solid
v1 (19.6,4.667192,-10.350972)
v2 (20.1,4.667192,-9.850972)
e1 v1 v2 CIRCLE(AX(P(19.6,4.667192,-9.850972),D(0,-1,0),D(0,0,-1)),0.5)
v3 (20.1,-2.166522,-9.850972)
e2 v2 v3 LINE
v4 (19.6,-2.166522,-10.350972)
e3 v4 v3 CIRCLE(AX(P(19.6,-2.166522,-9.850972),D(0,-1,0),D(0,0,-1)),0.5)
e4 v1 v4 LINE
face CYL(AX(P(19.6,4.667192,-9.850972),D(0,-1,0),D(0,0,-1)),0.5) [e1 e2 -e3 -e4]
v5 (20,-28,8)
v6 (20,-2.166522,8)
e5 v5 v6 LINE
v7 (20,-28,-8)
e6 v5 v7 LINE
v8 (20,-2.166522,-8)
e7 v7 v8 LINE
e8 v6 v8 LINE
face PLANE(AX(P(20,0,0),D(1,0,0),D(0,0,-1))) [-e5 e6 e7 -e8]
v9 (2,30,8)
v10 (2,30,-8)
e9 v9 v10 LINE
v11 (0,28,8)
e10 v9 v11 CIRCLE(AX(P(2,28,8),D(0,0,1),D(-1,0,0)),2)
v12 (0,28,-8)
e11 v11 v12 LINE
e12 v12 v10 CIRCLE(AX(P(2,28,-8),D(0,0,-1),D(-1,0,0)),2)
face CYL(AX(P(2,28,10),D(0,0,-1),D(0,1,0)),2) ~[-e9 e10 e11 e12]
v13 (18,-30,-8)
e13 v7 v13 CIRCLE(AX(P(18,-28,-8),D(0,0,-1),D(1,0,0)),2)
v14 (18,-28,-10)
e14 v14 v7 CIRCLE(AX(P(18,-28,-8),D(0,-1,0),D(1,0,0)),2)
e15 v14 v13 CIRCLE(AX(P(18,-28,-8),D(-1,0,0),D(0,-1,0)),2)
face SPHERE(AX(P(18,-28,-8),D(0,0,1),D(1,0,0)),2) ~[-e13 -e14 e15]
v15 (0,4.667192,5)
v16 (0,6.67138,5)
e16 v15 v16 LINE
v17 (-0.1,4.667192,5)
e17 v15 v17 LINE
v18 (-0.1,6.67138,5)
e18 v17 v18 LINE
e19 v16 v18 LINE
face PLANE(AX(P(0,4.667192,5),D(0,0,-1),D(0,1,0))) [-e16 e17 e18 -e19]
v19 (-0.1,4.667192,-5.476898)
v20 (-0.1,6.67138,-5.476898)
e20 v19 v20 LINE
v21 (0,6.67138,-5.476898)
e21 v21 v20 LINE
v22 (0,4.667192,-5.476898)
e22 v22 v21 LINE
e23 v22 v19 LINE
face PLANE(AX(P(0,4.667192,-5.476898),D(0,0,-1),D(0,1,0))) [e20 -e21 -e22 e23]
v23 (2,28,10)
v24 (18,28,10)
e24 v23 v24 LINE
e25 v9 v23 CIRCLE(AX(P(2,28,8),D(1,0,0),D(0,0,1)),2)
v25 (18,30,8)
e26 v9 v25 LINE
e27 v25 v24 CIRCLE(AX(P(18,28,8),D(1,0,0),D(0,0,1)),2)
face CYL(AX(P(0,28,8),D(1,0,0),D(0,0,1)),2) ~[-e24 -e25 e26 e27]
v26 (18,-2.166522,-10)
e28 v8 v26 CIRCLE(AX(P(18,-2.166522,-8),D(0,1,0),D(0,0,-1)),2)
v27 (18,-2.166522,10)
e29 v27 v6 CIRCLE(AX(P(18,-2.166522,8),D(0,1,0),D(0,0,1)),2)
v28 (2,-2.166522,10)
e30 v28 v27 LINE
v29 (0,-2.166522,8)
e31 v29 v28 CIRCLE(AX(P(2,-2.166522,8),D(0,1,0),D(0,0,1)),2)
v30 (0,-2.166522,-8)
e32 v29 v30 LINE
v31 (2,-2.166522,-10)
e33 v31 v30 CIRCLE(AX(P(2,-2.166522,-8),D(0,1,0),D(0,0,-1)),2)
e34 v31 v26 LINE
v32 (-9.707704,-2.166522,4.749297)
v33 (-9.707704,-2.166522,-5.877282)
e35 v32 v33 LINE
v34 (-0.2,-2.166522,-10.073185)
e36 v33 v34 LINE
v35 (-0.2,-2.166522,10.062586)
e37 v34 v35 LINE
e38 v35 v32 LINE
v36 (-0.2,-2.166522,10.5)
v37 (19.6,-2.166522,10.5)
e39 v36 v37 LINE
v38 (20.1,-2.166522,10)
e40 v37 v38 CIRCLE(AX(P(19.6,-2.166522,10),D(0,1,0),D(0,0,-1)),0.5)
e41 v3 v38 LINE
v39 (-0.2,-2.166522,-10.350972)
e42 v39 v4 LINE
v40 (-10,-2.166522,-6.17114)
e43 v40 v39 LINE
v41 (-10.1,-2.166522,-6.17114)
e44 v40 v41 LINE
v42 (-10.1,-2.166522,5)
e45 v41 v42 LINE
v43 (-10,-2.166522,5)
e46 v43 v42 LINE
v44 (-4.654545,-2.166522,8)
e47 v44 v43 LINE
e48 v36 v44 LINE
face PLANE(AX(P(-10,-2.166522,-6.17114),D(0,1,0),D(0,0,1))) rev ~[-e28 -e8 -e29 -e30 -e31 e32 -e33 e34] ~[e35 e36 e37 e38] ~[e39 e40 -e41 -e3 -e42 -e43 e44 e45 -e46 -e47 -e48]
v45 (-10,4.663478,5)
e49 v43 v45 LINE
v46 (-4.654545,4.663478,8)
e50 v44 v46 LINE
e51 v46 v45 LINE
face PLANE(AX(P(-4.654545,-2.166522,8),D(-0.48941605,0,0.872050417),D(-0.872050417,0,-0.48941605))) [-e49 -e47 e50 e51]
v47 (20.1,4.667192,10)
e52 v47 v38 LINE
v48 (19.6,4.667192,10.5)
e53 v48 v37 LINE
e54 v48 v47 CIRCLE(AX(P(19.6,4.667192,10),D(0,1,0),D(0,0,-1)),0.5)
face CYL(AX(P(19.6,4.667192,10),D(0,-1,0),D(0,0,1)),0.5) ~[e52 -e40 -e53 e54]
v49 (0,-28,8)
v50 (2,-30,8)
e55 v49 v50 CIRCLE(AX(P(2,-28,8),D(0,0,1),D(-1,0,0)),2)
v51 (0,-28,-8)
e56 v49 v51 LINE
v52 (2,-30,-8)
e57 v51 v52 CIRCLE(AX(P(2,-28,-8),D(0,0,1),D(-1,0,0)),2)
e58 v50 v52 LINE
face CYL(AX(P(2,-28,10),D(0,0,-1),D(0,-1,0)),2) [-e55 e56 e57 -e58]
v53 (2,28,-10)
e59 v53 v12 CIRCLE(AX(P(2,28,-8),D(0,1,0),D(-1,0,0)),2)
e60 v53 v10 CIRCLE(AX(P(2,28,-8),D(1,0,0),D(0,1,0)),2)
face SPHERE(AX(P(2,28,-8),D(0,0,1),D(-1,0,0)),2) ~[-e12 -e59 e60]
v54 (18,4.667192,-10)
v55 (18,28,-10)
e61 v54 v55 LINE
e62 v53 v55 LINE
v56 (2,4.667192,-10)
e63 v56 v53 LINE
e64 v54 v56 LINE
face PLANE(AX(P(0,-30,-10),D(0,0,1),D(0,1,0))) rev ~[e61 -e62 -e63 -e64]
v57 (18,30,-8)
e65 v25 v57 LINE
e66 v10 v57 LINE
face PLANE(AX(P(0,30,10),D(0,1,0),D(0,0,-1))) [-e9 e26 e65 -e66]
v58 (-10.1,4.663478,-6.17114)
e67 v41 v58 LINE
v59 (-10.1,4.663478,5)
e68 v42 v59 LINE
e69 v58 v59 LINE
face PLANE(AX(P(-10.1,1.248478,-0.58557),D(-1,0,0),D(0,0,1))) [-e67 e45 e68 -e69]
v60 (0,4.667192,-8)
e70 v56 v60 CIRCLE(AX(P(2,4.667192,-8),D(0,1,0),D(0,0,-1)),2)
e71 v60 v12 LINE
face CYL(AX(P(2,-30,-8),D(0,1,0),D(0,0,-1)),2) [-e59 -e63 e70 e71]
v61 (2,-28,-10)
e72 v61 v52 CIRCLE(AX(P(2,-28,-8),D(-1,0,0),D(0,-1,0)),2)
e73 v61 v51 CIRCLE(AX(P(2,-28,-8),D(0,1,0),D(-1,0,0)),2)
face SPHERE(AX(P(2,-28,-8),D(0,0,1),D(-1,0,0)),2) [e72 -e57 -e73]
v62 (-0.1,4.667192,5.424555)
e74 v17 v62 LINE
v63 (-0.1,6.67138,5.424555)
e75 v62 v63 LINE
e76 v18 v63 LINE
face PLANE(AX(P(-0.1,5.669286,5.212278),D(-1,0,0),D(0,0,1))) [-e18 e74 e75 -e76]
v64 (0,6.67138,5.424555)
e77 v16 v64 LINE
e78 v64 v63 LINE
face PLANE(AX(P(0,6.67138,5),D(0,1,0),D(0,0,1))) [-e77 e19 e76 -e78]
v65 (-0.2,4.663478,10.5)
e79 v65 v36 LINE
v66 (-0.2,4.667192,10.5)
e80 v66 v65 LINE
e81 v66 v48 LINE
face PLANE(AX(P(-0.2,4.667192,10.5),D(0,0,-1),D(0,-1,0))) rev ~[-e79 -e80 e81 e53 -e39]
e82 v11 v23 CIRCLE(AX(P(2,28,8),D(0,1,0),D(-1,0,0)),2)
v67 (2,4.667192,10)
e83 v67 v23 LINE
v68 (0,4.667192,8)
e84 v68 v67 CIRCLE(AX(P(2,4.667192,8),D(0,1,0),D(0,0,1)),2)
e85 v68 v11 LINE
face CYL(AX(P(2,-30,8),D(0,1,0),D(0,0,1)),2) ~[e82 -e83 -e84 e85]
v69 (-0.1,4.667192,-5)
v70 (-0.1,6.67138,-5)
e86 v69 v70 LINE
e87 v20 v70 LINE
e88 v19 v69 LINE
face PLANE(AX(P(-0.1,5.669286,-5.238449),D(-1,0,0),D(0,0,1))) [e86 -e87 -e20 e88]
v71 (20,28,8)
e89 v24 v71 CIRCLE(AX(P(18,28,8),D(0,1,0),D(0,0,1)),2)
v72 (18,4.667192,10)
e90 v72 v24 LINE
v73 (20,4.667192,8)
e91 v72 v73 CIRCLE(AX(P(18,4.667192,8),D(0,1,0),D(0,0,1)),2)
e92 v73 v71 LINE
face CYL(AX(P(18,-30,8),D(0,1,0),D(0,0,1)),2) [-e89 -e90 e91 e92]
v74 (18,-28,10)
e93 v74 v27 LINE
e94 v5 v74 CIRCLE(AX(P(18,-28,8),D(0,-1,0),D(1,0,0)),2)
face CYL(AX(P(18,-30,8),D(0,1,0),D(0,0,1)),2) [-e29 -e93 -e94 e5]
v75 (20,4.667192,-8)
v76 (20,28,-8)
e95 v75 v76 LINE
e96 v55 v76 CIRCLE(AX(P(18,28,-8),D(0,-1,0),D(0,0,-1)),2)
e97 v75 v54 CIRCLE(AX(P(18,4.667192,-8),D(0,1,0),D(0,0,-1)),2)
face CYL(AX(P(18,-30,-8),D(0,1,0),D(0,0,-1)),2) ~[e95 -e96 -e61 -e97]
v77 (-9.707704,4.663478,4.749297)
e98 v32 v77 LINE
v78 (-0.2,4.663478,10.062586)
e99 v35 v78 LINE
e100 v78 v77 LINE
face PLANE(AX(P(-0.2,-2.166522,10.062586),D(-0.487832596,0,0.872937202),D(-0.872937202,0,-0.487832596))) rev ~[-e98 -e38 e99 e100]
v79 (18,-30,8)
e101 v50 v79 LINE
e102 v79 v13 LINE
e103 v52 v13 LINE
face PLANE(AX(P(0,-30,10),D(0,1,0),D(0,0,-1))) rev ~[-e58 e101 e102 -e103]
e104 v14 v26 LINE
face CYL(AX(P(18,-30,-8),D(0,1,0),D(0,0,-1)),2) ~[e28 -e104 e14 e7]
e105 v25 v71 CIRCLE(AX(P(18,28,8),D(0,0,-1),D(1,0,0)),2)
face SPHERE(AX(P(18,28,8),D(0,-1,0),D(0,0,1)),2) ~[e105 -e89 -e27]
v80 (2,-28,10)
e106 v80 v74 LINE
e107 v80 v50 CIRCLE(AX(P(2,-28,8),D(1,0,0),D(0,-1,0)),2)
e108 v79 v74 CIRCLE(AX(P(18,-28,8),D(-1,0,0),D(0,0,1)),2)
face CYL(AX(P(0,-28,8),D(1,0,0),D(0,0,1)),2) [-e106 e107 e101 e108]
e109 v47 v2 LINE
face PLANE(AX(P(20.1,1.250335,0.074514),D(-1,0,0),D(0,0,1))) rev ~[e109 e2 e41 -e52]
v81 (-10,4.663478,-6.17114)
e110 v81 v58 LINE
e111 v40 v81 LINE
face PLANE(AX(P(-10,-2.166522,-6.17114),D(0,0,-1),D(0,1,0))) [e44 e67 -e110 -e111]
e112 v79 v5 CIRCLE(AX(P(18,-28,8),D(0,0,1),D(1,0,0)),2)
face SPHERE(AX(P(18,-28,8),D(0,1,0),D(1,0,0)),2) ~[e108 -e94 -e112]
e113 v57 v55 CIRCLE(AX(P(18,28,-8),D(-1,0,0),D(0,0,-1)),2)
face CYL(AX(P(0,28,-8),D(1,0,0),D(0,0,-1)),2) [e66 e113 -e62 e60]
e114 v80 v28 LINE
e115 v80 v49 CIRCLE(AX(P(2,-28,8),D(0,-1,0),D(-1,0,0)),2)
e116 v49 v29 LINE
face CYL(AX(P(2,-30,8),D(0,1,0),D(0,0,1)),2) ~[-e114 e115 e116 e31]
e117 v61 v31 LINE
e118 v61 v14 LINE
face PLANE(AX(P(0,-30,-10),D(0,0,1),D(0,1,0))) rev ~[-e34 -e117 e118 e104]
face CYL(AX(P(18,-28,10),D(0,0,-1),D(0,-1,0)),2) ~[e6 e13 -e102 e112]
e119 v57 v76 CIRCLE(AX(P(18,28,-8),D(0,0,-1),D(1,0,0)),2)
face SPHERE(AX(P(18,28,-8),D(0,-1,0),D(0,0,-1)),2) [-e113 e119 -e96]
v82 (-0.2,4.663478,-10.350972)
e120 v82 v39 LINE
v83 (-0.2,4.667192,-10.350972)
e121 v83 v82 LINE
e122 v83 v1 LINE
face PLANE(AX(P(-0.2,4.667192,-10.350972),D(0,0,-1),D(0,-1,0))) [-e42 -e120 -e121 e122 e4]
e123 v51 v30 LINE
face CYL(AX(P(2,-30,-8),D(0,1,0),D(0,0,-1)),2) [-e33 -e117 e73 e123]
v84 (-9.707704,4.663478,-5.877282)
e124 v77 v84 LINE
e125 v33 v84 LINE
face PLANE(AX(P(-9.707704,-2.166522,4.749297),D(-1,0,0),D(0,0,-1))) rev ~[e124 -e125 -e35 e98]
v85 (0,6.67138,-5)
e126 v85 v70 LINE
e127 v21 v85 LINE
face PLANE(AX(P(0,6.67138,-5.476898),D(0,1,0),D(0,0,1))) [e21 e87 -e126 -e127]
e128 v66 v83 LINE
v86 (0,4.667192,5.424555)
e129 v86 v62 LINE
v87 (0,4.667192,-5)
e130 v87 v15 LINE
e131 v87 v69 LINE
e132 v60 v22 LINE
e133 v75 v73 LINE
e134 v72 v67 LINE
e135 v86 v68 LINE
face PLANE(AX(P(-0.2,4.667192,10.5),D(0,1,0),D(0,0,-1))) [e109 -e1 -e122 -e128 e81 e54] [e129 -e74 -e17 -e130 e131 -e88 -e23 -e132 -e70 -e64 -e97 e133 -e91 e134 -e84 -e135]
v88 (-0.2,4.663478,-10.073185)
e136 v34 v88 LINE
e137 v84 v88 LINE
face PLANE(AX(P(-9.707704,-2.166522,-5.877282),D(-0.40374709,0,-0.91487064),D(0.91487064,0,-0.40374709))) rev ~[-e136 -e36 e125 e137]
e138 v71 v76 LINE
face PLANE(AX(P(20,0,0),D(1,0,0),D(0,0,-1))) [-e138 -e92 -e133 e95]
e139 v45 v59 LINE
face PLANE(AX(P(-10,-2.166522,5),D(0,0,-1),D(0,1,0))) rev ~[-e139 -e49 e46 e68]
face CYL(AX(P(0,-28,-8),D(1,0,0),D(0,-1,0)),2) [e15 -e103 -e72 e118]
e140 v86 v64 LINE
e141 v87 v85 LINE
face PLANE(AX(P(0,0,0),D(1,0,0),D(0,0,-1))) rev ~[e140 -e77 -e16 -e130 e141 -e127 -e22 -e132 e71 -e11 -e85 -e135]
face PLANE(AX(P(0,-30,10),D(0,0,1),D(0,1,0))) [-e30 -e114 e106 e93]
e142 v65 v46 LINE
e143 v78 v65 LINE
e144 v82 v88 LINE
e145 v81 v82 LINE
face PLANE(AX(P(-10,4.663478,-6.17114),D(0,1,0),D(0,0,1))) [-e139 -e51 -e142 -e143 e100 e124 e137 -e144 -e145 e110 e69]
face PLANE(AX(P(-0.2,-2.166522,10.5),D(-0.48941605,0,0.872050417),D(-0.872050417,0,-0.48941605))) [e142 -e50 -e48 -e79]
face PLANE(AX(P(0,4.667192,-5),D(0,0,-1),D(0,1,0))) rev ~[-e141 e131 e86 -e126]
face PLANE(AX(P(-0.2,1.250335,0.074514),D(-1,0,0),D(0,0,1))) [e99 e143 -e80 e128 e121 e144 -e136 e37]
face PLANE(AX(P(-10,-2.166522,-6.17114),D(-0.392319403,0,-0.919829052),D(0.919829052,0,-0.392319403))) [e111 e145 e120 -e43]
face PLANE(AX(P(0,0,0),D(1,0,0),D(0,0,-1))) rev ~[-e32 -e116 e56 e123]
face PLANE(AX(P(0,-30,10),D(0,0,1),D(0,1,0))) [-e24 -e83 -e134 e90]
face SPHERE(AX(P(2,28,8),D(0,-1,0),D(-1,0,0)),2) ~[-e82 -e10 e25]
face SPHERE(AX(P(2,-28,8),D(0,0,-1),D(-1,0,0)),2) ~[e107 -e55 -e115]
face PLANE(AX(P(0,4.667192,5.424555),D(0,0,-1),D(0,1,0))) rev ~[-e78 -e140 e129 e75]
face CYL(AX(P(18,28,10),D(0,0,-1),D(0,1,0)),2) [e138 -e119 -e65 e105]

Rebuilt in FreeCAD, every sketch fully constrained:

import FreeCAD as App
import Part
import Sketcher


def edges_at(feature, points):
    """Names of the edges that pass closest to the given points."""
    edges = feature.Shape.Edges
    near = lambda p: min(range(len(edges)), key=lambda i: edges[i].distToShape(Part.Vertex(*p))[0])
    return sorted({f"Edge{near(p) + 1}" for p in points})


def add_polygon(sketch, points):
    """Adds a closed chain of lines whose ends are joined by coincident constraints."""
    first, n = sketch.GeometryCount, len(points)
    for a, b in zip(points, points[1:] + points[:1]):
        sketch.addGeometry(Part.LineSegment(App.Vector(*a, 0), App.Vector(*b, 0)), False)
    for i in range(n):
        sketch.addConstraint(Sketcher.Constraint("Coincident", first + i, 2, first + (i + 1) % n, 1))

doc = App.newDocument("Part")
body = doc.addObject("PartDesign::Body", "Body")

# Sketch on YZ plane
sketch1 = doc.addObject("Sketcher::SketchObject", "Sketch")
body.addObject(sketch1)
sketch1.AttachmentSupport = (doc.YZ_Plane, [""])
sketch1.MapMode = "FlatFace"
add_polygon(sketch1, [(30, 10), (-30, 10), (-30, -10), (30, -10)])  # lines 0-3
sketch1.addConstraint([
    Sketcher.Constraint("Horizontal", 0),
    Sketcher.Constraint("Vertical", 1),
    Sketcher.Constraint("Horizontal", 2),
    Sketcher.Constraint("Vertical", 3),
    Sketcher.Constraint("Symmetric", 0, 2, 2, 2, -1, 1),
    Sketcher.Constraint("DistanceX", 0, 2, 0, 1, 60.0),
    Sketcher.Constraint("DistanceY", 1, 2, 1, 1, 20.0),
])
pad1 = doc.addObject("PartDesign::Pad", "Pad")
body.addObject(pad1)
pad1.Profile = sketch1
pad1.Length = 20
doc.recompute()

fillet = doc.addObject("PartDesign::Fillet", "Fillet")
body.addObject(fillet)
fillet.Base = (pad1, ["Edge1"])
fillet.UseAllEdges = True
fillet.Radius = 2

# Sketch on XY plane
sketch2 = doc.addObject("Sketcher::SketchObject", "Sketch001")
body.addObject(sketch2)
sketch2.AttachmentSupport = (doc.XY_Plane, [""])
sketch2.MapMode = "FlatFace"
sketch2.AttachmentOffset = App.Placement(App.Vector(0, 0, 10), App.Rotation())
add_polygon(sketch2, [(2, 1.2), (2, 0), (18, 0), (18, 1.2)])  # lines 0-3
sketch2.addConstraint([
    Sketcher.Constraint("Vertical", 0),
    Sketcher.Constraint("Horizontal", 1),
    Sketcher.Constraint("Vertical", 2),
    Sketcher.Constraint("Horizontal", 3),
    Sketcher.Constraint("PointOnObject", 0, 2, -1),
    Sketcher.Constraint("DistanceX", 1, 1, 1, 2, 16.0),
    Sketcher.Constraint("DistanceX", -1, 1, 0, 2, 2.0),
    Sketcher.Constraint("DistanceY", 0, 2, 0, 1, 1.155895),
])
pad2 = doc.addObject("PartDesign::Pad", "Pad001")
body.addObject(pad2)
pad2.Profile = sketch2
pad2.Length = 0.5

# Sketch on YZ plane
sketch3 = doc.addObject("Sketcher::SketchObject", "Sketch002")
body.addObject(sketch3)
sketch3.AttachmentSupport = (doc.YZ_Plane, [""])
sketch3.MapMode = "FlatFace"
sketch3.AttachmentOffset = App.Placement(App.Vector(0, 0, 18), App.Rotation())
add_polygon(sketch3, [(5, 10), (-2, 10), (-2, -10), (5, -10)])  # lines 0-3
sketch3.addConstraint([
    Sketcher.Constraint("Horizontal", 0),
    Sketcher.Constraint("Vertical", 1),
    Sketcher.Constraint("Horizontal", 2),
    Sketcher.Constraint("Vertical", 3),
    Sketcher.Constraint("DistanceY", -1, 1, 0, 2, 10.5),
    Sketcher.Constraint("DistanceY", 1, 2, 1, 1, 20.850972),
    Sketcher.Constraint("DistanceX", 0, 2, 0, 1, 6.833715),
    Sketcher.Constraint("DistanceX", 0, 2, -1, 1, 2.166522),
])
pad3 = doc.addObject("PartDesign::Pad", "Pad002")
body.addObject(pad3)
pad3.Profile = sketch3
pad3.Type = "TwoLengths"
pad3.Length = 2.1
pad3.Length2 = 18.2

# Sketch on YZ plane
sketch4 = doc.addObject("Sketcher::SketchObject", "Sketch003")
body.addObject(sketch4)
sketch4.AttachmentSupport = (doc.YZ_Plane, [""])
sketch4.MapMode = "FlatFace"
add_polygon(sketch4, [(6.67, -5.48), (4.67, -5.48), (4.67, -5), (6.67, -5)])  # lines 0-3
add_polygon(sketch4, [(6.67, 5), (4.67, 5), (4.67, 5.42), (6.67, 5.42)])  # lines 4-7
sketch4.addConstraint([
    Sketcher.Constraint("Horizontal", 0),
    Sketcher.Constraint("Vertical", 1),
    Sketcher.Constraint("Horizontal", 2),
    Sketcher.Constraint("Vertical", 3),
    Sketcher.Constraint("Horizontal", 4),
    Sketcher.Constraint("Vertical", 5),
    Sketcher.Constraint("Horizontal", 6),
    Sketcher.Constraint("Vertical", 7),
    Sketcher.Constraint("Symmetric", 1, 2, 4, 2, -1),
    Sketcher.Constraint("Vertical", 3, 2, 6, 2),
    Sketcher.Constraint("DistanceY", 1, 2, -1, 1, 5.0),
    Sketcher.Constraint("DistanceX", 0, 2, 0, 1, 2.004188),
    Sketcher.Constraint("DistanceY", 1, 1, 1, 2, 0.476898),
    Sketcher.Constraint("DistanceY", 5, 1, 5, 2, 0.424555),
    Sketcher.Constraint("DistanceX", -1, 1, 2, 2, 6.67138),
])
pad4 = doc.addObject("PartDesign::Pad", "Pad003")
body.addObject(pad4)
pad4.Profile = sketch4
pad4.Length = 0.1
pad4.Reversed = True

# Sketch on XZ plane
sketch5 = doc.addObject("Sketcher::SketchObject", "Sketch004")
body.addObject(sketch5)
sketch5.AttachmentSupport = (doc.XZ_Plane, [""])
sketch5.MapMode = "FlatFace"
sketch5.AttachmentOffset = App.Placement(App.Vector(0, 0, 2.166522), App.Rotation())
add_polygon(sketch5, [(0, -10), (0, 10), (-5, 8), (-10, 5), (-10, -6)])  # lines 0-4
sketch5.addConstraint([
    Sketcher.Constraint("Vertical", 0),
    Sketcher.Constraint("Vertical", 3),
    Sketcher.Constraint("Parallel", 1, 2),
    Sketcher.Constraint("DistanceY", -1, 1, 1, 2, 8.0),
    Sketcher.Constraint("DistanceX", 2, 2, -1, 1, 10.0),
    Sketcher.Constraint("DistanceY", -1, 1, 2, 2, 5.0),
    Sketcher.Constraint("DistanceX", 0, 2, -1, 1, 0.2),
    Sketcher.Constraint("DistanceY", -1, 1, 0, 2, 10.5),
    Sketcher.Constraint("DistanceY", 0, 1, 0, 2, 20.850972),
    Sketcher.Constraint("DistanceY", 3, 2, 3, 1, 11.17114),
])
pad5 = doc.addObject("PartDesign::Pad", "Pad004")
body.addObject(pad5)
pad5.Profile = sketch5
pad5.Length = 6.83
pad5.Reversed = True

# Sketch on XZ plane
sketch6 = doc.addObject("Sketcher::SketchObject", "Sketch005")
body.addObject(sketch6)
sketch6.AttachmentSupport = (doc.XZ_Plane, [""])
sketch6.MapMode = "FlatFace"
sketch6.AttachmentOffset = App.Placement(App.Vector(0, 0, 2.166522), App.Rotation())
add_polygon(sketch6, [(-10, -6), (0, -10), (0, 10), (-10, 5)])  # lines 0-3
sketch6.addConstraint([
    Sketcher.Constraint("Vertical", 1),
    Sketcher.Constraint("Vertical", 3),
    Sketcher.Constraint("DistanceX", 0, 2, -1, 1, 0.2),
    Sketcher.Constraint("DistanceY", 1, 1, 1, 2, 20.135771),
    Sketcher.Constraint("DistanceY", 3, 2, 3, 1, 10.626579),
    Sketcher.Constraint("DistanceY", 2, 2, 1, 2, 5.31329),
    Sketcher.Constraint("Distance", 0, 10.392403),
    Sketcher.Constraint("DistanceY", 0, 2, -1, 1, 10.073185),
])
pocket1 = doc.addObject("PartDesign::Pocket", "Pocket")
body.addObject(pocket1)
pocket1.Profile = sketch6
pocket1.Length = 6.83

# Sketch on YZ plane
sketch7 = doc.addObject("Sketcher::SketchObject", "Sketch006")
body.addObject(sketch7)
sketch7.AttachmentSupport = (doc.YZ_Plane, [""])
sketch7.MapMode = "FlatFace"
sketch7.AttachmentOffset = App.Placement(App.Vector(0, 0, -10), App.Rotation())
add_polygon(sketch7, [(5, -6), (-2, -6), (-2, 5), (5, 5)])  # lines 0-3
sketch7.addConstraint([
    Sketcher.Constraint("Horizontal", 0),
    Sketcher.Constraint("Vertical", 1),
    Sketcher.Constraint("Horizontal", 2),
    Sketcher.Constraint("Vertical", 3),
    Sketcher.Constraint("DistanceY", -1, 1, 1, 2, 5.0),
    Sketcher.Constraint("DistanceX", 0, 2, 0, 1, 6.83),
    Sketcher.Constraint("DistanceY", 1, 1, 1, 2, 11.17114),
    Sketcher.Constraint("DistanceX", 0, 2, -1, 1, 2.166522),
])
pad6 = doc.addObject("PartDesign::Pad", "Pad005")
body.addObject(pad6)
pad6.Profile = sketch7
pad6.Length = 0.1
pad6.Reversed = True
doc.recompute()

fillet2 = doc.addObject("PartDesign::Fillet", "Fillet001")
body.addObject(fillet2)
fillet2.Base = (pad6, edges_at(pad6, [(20.1, 1.25, 10.5), (20.1, 1.25, -10.351)]))
fillet2.Radius = 0.5

doc.recompute()
